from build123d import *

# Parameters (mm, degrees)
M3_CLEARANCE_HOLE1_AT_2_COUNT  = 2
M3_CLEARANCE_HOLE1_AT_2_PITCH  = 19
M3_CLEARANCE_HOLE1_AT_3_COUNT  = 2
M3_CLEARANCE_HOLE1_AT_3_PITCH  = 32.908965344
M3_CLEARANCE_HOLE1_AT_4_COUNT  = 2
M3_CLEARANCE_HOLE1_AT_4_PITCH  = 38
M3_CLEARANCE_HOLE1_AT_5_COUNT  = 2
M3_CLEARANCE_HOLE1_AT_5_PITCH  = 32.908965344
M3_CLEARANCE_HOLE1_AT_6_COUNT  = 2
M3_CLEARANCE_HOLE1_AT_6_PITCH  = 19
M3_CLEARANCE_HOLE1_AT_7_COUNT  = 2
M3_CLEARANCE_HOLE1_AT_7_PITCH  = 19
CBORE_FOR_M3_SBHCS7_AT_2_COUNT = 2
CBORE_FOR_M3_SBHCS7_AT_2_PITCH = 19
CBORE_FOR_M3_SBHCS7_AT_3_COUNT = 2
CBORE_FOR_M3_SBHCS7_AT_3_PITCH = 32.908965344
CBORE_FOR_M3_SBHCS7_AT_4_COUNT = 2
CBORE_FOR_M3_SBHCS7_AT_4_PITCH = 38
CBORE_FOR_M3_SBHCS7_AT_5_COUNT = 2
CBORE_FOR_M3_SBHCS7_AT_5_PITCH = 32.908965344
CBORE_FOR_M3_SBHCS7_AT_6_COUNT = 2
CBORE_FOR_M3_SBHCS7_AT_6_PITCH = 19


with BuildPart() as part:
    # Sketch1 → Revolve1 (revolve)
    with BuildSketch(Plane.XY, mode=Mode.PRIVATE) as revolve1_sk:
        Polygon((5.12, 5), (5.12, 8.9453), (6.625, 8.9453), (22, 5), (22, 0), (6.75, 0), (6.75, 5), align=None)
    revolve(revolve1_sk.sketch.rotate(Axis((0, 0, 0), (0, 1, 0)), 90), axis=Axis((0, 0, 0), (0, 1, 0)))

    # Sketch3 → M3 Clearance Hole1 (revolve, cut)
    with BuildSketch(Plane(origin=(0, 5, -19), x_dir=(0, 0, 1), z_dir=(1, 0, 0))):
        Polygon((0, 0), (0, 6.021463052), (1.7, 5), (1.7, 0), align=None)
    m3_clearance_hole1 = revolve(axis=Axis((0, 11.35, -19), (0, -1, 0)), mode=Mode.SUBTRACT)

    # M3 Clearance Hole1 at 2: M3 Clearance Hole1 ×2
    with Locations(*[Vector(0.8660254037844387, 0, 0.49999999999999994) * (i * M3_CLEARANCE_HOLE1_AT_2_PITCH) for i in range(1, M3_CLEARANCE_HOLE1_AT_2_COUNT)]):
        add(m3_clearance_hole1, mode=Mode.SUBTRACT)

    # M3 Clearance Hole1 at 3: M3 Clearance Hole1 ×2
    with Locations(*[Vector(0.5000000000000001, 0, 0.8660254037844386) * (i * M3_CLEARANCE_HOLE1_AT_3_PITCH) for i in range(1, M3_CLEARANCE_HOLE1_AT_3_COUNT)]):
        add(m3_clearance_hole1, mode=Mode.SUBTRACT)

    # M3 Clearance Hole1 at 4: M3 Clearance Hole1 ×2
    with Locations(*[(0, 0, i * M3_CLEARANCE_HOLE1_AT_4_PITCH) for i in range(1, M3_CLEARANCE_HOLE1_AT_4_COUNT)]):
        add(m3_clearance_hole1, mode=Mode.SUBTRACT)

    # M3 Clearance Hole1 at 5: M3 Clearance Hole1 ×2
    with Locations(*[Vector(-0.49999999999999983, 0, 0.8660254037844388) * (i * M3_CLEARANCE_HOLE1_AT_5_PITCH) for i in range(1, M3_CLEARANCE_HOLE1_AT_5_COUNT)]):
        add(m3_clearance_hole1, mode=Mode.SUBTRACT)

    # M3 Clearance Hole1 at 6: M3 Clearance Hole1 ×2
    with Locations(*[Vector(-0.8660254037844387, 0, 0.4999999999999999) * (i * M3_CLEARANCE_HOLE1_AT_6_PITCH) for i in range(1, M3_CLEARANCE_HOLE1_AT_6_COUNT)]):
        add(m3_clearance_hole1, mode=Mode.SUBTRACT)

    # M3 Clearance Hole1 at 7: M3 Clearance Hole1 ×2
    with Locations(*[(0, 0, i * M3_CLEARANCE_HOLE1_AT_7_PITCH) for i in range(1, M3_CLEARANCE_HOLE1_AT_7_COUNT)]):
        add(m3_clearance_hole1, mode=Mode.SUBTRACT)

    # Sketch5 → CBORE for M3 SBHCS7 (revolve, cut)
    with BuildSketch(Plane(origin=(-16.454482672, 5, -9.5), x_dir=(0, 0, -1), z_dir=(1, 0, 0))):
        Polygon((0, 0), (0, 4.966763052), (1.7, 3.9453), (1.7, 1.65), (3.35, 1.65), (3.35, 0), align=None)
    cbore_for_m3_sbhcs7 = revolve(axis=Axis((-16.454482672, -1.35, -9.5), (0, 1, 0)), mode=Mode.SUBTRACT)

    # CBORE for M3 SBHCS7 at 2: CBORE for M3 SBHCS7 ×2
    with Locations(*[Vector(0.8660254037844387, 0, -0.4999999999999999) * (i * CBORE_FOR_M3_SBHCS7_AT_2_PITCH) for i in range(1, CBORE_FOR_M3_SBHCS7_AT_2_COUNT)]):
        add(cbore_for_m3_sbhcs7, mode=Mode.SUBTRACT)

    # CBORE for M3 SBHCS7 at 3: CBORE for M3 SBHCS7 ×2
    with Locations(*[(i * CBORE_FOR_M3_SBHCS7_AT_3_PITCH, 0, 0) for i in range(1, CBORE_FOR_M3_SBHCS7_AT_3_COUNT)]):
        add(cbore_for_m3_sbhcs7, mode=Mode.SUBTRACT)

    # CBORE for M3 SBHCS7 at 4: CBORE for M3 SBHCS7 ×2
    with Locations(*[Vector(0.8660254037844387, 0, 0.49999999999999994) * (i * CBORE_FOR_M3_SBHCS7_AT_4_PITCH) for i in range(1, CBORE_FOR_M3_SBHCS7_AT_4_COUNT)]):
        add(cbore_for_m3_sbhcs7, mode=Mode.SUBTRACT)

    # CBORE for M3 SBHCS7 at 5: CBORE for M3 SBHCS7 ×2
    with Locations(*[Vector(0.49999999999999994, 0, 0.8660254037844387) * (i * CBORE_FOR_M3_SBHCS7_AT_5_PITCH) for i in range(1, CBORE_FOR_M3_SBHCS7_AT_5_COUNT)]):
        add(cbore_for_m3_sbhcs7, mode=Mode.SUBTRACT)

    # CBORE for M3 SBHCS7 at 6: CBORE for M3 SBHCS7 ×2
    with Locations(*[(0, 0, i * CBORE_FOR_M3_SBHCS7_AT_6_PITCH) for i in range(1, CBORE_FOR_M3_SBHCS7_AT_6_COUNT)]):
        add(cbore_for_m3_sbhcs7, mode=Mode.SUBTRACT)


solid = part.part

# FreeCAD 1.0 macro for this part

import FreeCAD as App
import Part
import Sketcher
from FreeCAD import Vector
Q = App.Units.Quantity

doc = App.newDocument("Part")
body = doc.addObject("PartDesign::Body", "Body")

# Sketch on XY plane
sketch1 = body.newObject("Sketcher::SketchObject", "Sketch")
sketch1.AttachmentSupport = (doc.getObject("XY_Plane"), [""])
sketch1.MapMode = "FlatFace"
sketch1.addGeometry([
    Part.LineSegment(Vector(5.1, 8.9, 0), Vector(5.1, 5, 0)),  # 0
    Part.LineSegment(Vector(5.1, 5, 0), Vector(6.8, 5, 0)),  # 1
    Part.LineSegment(Vector(6.8, 5, 0), Vector(6.8, 0, 0)),  # 2
    Part.LineSegment(Vector(6.8, 0, 0), Vector(22, 0, 0)),  # 3
    Part.LineSegment(Vector(22, 0, 0), Vector(22, 5, 0)),  # 4
    Part.LineSegment(Vector(22, 5, 0), Vector(6.6, 8.9, 0)),  # 5
    Part.LineSegment(Vector(6.6, 8.9, 0), Vector(5.1, 8.9, 0)),  # 6
], False)
sketch1.addConstraint([
    Sketcher.Constraint("Coincident", 0, 2, 1, 1),
    Sketcher.Constraint("Coincident", 1, 2, 2, 1),
    Sketcher.Constraint("Coincident", 2, 2, 3, 1),
    Sketcher.Constraint("Coincident", 3, 2, 4, 1),
    Sketcher.Constraint("Coincident", 4, 2, 5, 1),
    Sketcher.Constraint("Coincident", 5, 2, 6, 1),
    Sketcher.Constraint("Coincident", 6, 2, 0, 1),
    Sketcher.Constraint("Vertical", 0),
    Sketcher.Constraint("Horizontal", 1),
    Sketcher.Constraint("Vertical", 2),
    Sketcher.Constraint("Horizontal", 3),
    Sketcher.Constraint("Vertical", 4),
    Sketcher.Constraint("Horizontal", 6),
    Sketcher.Constraint("PointOnObject", 2, 2, -1),
    Sketcher.Constraint("Horizontal", 1, 2, 4, 2),
    Sketcher.Constraint("DistanceY", 2, 2, 2, 1, 5.0),
    Sketcher.Constraint("DistanceX", -1, 1, 3, 2, 22.0),
    Sketcher.Constraint("DistanceX", 1, 1, 1, 2, 1.63),
    Sketcher.Constraint("DistanceX", 3, 1, 3, 2, 15.25),
    Sketcher.Constraint("DistanceX", 6, 2, 6, 1, 1.505),
    Sketcher.Constraint("DistanceY", 0, 2, 0, 1, 3.9453),
])
revolution = body.newObject("PartDesign::Revolution", "Revolution")
revolution.Profile = sketch1
revolution.ReferenceAxis = (sketch1, ["V_Axis"])
revolution.Angle = 360

# Sketch on YZ plane
sketch2 = body.newObject("Sketcher::SketchObject", "Sketch001")
sketch2.AttachmentSupport = (doc.getObject("YZ_Plane"), [""])
sketch2.MapMode = "FlatFace"
sketch2.addGeometry([
    Part.LineSegment(Vector(-1, -19, 0), Vector(5, -19, 0)),
    Part.LineSegment(Vector(5, -19, 0), Vector(5, -17.3, 0)),
    Part.LineSegment(Vector(5, -17.3, 0), Vector(0, -17.3, 0)),
    Part.LineSegment(Vector(0, -17.3, 0), Vector(-1, -19, 0)),
], False)
sketch2.addGeometry(Part.LineSegment(Vector(5, -19, 0), Vector(-1, -19, 0)), True)  # axis
sketch2.addConstraint([
    Sketcher.Constraint("Coincident", 0, 2, 1, 1),
    Sketcher.Constraint("Coincident", 1, 2, 2, 1),
    Sketcher.Constraint("Coincident", 2, 2, 3, 1),
    Sketcher.Constraint("Coincident", 3, 2, 0, 1),
    Sketcher.Constraint("Horizontal", 0),
    Sketcher.Constraint("Vertical", 1),
    Sketcher.Constraint("Horizontal", 2),
    Sketcher.Constraint("Horizontal", 4),
    Sketcher.Constraint("Coincident", 4, 1, 0, 2),
    Sketcher.Constraint("PointOnObject", 2, 2, -2),
    Sketcher.Constraint("Equal", 0, 4),
    Sketcher.Constraint("DistanceX", 2, 2, 2, 1, 5.0),
    Sketcher.Constraint("Angle", 3, Q("-121 deg")),
    Sketcher.Constraint("DistanceY", 1, 1, 1, 2, 1.7),
    Sketcher.Constraint("DistanceY", 0, 2, -1, 1, 19.0),
])
groove = body.newObject("PartDesign::Groove", "Groove")
groove.Profile = sketch2
groove.ReferenceAxis = (sketch2, ["Axis0"])
groove.Angle = 360
doc.recompute()

datumline = body.newObject("PartDesign::Line", "DatumLine")
datumline.Placement = App.Placement(Vector(0, 0, 0), App.Rotation(Vector(0, 0, 1), Vector(0.866025404, 0, 0.5)))
linearpattern = body.newObject("PartDesign::LinearPattern", "LinearPattern")
linearpattern.Originals = [groove]
linearpattern.Direction = (datumline, [""])
linearpattern.Mode = "offset"
linearpattern.Offset = 19
linearpattern.Occurrences = 2
body.Tip = linearpattern
doc.recompute()

datumline2 = body.newObject("PartDesign::Line", "DatumLine001")
datumline2.Placement = App.Placement(Vector(0, 0, 0), App.Rotation(Vector(0, 0, 1), Vector(0.5, 0, 0.866025404)))
linearpattern2 = body.newObject("PartDesign::LinearPattern", "LinearPattern001")
linearpattern2.Originals = [groove]
linearpattern2.Direction = (datumline2, [""])
linearpattern2.Mode = "offset"
linearpattern2.Offset = 32.908965
linearpattern2.Occurrences = 2
body.Tip = linearpattern2
doc.recompute()

linearpattern3 = body.newObject("PartDesign::LinearPattern", "LinearPattern002")
linearpattern3.Originals = [groove]
linearpattern3.Direction = (doc.getObject("Z_Axis"), [""])
linearpattern3.Mode = "offset"
linearpattern3.Offset = 38
linearpattern3.Occurrences = 2
body.Tip = linearpattern3
doc.recompute()

datumline3 = body.newObject("PartDesign::Line", "DatumLine002")
datumline3.Placement = App.Placement(Vector(0, 0, 0), App.Rotation(Vector(0, 0, 1), Vector(-0.5, 0, 0.866025404)))
linearpattern4 = body.newObject("PartDesign::LinearPattern", "LinearPattern003")
linearpattern4.Originals = [groove]
linearpattern4.Direction = (datumline3, [""])
linearpattern4.Mode = "offset"
linearpattern4.Offset = 32.908965
linearpattern4.Occurrences = 2
body.Tip = linearpattern4
doc.recompute()

datumline4 = body.newObject("PartDesign::Line", "DatumLine003")
datumline4.Placement = App.Placement(Vector(0, 0, 0), App.Rotation(Vector(0, 0, 1), Vector(-0.866025404, 0, 0.5)))
linearpattern5 = body.newObject("PartDesign::LinearPattern", "LinearPattern004")
linearpattern5.Originals = [groove]
linearpattern5.Direction = (datumline4, [""])
linearpattern5.Mode = "offset"
linearpattern5.Offset = 19
linearpattern5.Occurrences = 2
body.Tip = linearpattern5
doc.recompute()

linearpattern6 = body.newObject("PartDesign::LinearPattern", "LinearPattern005")
linearpattern6.Originals = [groove]
linearpattern6.Direction = (doc.getObject("Z_Axis"), [""])
linearpattern6.Mode = "offset"
linearpattern6.Offset = 19
linearpattern6.Occurrences = 2
body.Tip = linearpattern6

# Sketch on YZ plane
sketch3 = body.newObject("Sketcher::SketchObject", "Sketch002")
sketch3.AttachmentSupport = (doc.getObject("YZ_Plane"), [""])
sketch3.MapMode = "FlatFace"
sketch3.AttachmentOffset = App.Placement(Vector(0, 0, -16.454483), App.Rotation())
sketch3.addGeometry([
    Part.LineSegment(Vector(10, -9.5, 0), Vector(5, -9.5, 0)),  # 0
    Part.LineSegment(Vector(5, -9.5, 0), Vector(5, -12.8, 0)),  # 1
    Part.LineSegment(Vector(5, -12.8, 0), Vector(6.7, -12.8, 0)),  # 2
    Part.LineSegment(Vector(6.7, -12.8, 0), Vector(6.7, -11.2, 0)),  # 3
    Part.LineSegment(Vector(6.7, -11.2, 0), Vector(8.9, -11.2, 0)),  # 4
    Part.LineSegment(Vector(8.9, -11.2, 0), Vector(10, -9.5, 0)),  # 5
], False)
sketch3.addGeometry(Part.LineSegment(Vector(5, -9.5, 0), Vector(10, -9.5, 0)), True)  # axis
sketch3.addConstraint([
    Sketcher.Constraint("Coincident", 0, 2, 1, 1),
    Sketcher.Constraint("Coincident", 1, 2, 2, 1),
    Sketcher.Constraint("Coincident", 2, 2, 3, 1),
    Sketcher.Constraint("Coincident", 3, 2, 4, 1),
    Sketcher.Constraint("Coincident", 4, 2, 5, 1),
    Sketcher.Constraint("Coincident", 5, 2, 0, 1),
    Sketcher.Constraint("Horizontal", 0),
    Sketcher.Constraint("Vertical", 1),
    Sketcher.Constraint("Horizontal", 2),
    Sketcher.Constraint("Vertical", 3),
    Sketcher.Constraint("Horizontal", 4),
    Sketcher.Constraint("Horizontal", 6),
    Sketcher.Constraint("Coincident", 6, 1, 0, 2),
    Sketcher.Constraint("Equal", 0, 6),
    Sketcher.Constraint("Equal", 2, 3),
    Sketcher.Constraint("Angle", 5, Q("59 deg")),
    Sketcher.Constraint("DistanceX", -1, 1, 0, 2, 5.0),
    Sketcher.Constraint("DistanceX", 2, 1, 2, 2, 1.65),
    Sketcher.Constraint("DistanceY", 1, 2, 1, 1, 3.35),
    Sketcher.Constraint("DistanceY", 0, 2, -1, 1, 9.5),
    Sketcher.Constraint("DistanceX", 4, 1, 4, 2, 2.2953),
])
groove2 = body.newObject("PartDesign::Groove", "Groove001")
groove2.Profile = sketch3
groove2.ReferenceAxis = (sketch3, ["Axis0"])
groove2.Angle = 360
doc.recompute()

datumline5 = body.newObject("PartDesign::Line", "DatumLine004")
datumline5.Placement = App.Placement(Vector(0, 0, 0), App.Rotation(Vector(0, 0, 1), Vector(0.866025404, 0, -0.5)))
linearpattern7 = body.newObject("PartDesign::LinearPattern", "LinearPattern006")
linearpattern7.Originals = [groove2]
linearpattern7.Direction = (datumline5, [""])
linearpattern7.Mode = "offset"
linearpattern7.Offset = 19
linearpattern7.Occurrences = 2
body.Tip = linearpattern7
doc.recompute()

linearpattern8 = body.newObject("PartDesign::LinearPattern", "LinearPattern007")
linearpattern8.Originals = [groove2]
linearpattern8.Direction = (doc.getObject("X_Axis"), [""])
linearpattern8.Mode = "offset"
linearpattern8.Offset = 32.908965
linearpattern8.Occurrences = 2
body.Tip = linearpattern8
doc.recompute()

datumline6 = body.newObject("PartDesign::Line", "DatumLine005")
datumline6.Placement = App.Placement(Vector(0, 0, 0), App.Rotation(Vector(0, 0, 1), Vector(0.866025404, 0, 0.5)))
linearpattern9 = body.newObject("PartDesign::LinearPattern", "LinearPattern008")
linearpattern9.Originals = [groove2]
linearpattern9.Direction = (datumline6, [""])
linearpattern9.Mode = "offset"
linearpattern9.Offset = 38
linearpattern9.Occurrences = 2
body.Tip = linearpattern9
doc.recompute()

datumline7 = body.newObject("PartDesign::Line", "DatumLine006")
datumline7.Placement = App.Placement(Vector(0, 0, 0), App.Rotation(Vector(0, 0, 1), Vector(0.5, 0, 0.866025404)))
linearpattern10 = body.newObject("PartDesign::LinearPattern", "LinearPattern009")
linearpattern10.Originals = [groove2]
linearpattern10.Direction = (datumline7, [""])
linearpattern10.Mode = "offset"
linearpattern10.Offset = 32.908965
linearpattern10.Occurrences = 2
body.Tip = linearpattern10
doc.recompute()

linearpattern11 = body.newObject("PartDesign::LinearPattern", "LinearPattern010")
linearpattern11.Originals = [groove2]
linearpattern11.Direction = (doc.getObject("Z_Axis"), [""])
linearpattern11.Mode = "offset"
linearpattern11.Offset = 19
linearpattern11.Occurrences = 2
body.Tip = linearpattern11

doc.recompute()
